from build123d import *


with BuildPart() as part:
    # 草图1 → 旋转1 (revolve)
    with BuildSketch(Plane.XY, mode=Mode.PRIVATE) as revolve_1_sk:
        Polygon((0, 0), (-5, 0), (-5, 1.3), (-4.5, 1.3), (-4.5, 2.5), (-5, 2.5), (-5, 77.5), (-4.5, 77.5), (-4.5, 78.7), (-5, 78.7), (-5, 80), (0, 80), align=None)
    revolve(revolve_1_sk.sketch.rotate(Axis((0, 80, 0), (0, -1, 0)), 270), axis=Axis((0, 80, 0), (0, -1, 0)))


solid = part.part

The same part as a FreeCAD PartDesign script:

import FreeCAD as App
import Part
import Sketcher
from FreeCAD import Vector


def add_polygon(sketch, points):
    """Adds a closed chain of lines whose ends are joined by coincident constraints."""
    first, n = sketch.GeometryCount, len(points)
    for a, b in zip(points, points[1:] + points[:1]):
        sketch.addGeometry(Part.LineSegment(App.Vector(*a, 0), App.Vector(*b, 0)), False)
    for i in range(n):
        sketch.addConstraint(Sketcher.Constraint("Coincident", first + i, 2, first + (i + 1) % n, 1))

doc = App.newDocument("Part")
body = doc.addObject("PartDesign::Body", "Body")

sketch1 = body.newObject("Sketcher::SketchObject", "Sketch")
sketch1.AttachmentSupport = (doc.getObject("XY_Plane"), [""])
sketch1.MapMode = "FlatFace"
add_polygon(sketch1, [(-5, 0), (0, 0), (0, 80), (-5, 80), (-5, 78.7), (-4.5, 78.7), (-4.5, 77.5), (-5, 77.5), (-5, 2.5), (-4.5, 2.5), (-4.5, 1.3), (-5, 1.3)])
sketch1.addConstraint([
    Sketcher.Constraint("Horizontal", 0),
    Sketcher.Constraint("Vertical", 1),
    Sketcher.Constraint("Horizontal", 2),
    Sketcher.Constraint("Vertical", 3),
    Sketcher.Constraint("Horizontal", 4),
    Sketcher.Constraint("Vertical", 5),
    Sketcher.Constraint("Horizontal", 6),
    Sketcher.Constraint("Vertical", 7),
    Sketcher.Constraint("Horizontal", 8),
    Sketcher.Constraint("Vertical", 9),
    Sketcher.Constraint("Horizontal", 10),
    Sketcher.Constraint("Vertical", 11),
    Sketcher.Constraint("Coincident", 0, 2, -1, 1),
    Sketcher.Constraint("Vertical", 3, 2, 6, 2),
    Sketcher.Constraint("Vertical", 5, 2, 8, 2),
    Sketcher.Constraint("Vertical", 7, 2, 10, 2),
    Sketcher.Constraint("Equal", 5, 9),
    Sketcher.Constraint("Equal", 3, 11),
    Sketcher.Constraint("DistanceX", 0, 1, 0, 2, 5.0),
    Sketcher.Constraint("DistanceY", 1, 1, 1, 2, 80.0),
    Sketcher.Constraint("DistanceY", 7, 2, 7, 1, 75.0),
    Sketcher.Constraint("DistanceX", 4, 1, 4, 2, 0.5),
    Sketcher.Constraint("DistanceY", 3, 2, 3, 1, 1.3),
])
revolution = body.newObject("PartDesign::Revolution", "Revolution")
revolution.Profile = sketch1
revolution.ReferenceAxis = (sketch1, ["V_Axis"])
revolution.Angle = 360

doc.recompute()
